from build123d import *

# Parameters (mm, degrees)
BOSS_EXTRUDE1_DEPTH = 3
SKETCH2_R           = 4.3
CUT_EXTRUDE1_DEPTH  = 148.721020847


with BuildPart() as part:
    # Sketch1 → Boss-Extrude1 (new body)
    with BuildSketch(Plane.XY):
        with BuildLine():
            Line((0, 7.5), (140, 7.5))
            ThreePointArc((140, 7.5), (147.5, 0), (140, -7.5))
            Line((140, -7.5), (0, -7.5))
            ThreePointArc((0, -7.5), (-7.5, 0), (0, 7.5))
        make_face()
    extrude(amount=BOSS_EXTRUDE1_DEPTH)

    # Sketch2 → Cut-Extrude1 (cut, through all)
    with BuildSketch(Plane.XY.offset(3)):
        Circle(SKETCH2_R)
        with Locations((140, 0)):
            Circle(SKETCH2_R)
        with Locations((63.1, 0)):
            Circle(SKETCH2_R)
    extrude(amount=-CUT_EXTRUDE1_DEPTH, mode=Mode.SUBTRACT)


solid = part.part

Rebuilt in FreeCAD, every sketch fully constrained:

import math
import FreeCAD as App
import Part
import Sketcher
from FreeCAD import Vector

doc = App.newDocument("Part")
params = doc.addObject("Spreadsheet::Sheet", "Params")
for row, (alias, value) in enumerate([
    ("sketch1_radius", "7.5 mm"),
    ("sketch1_width", "140 mm"),
    ("pad1_length", "3 mm"),
    ("sketch2_diameter", "8.6 mm"),
], start=1):
    params.set(f"A{row}", alias)
    params.set(f"B{row}", "=" + value)
    params.setAlias(f"B{row}", alias)

body = doc.addObject("PartDesign::Body", "Body")

sketch1 = body.newObject("Sketcher::SketchObject", "Sketch")
sketch1.AttachmentSupport = (doc.getObject("XY_Plane"), [""])
sketch1.MapMode = "FlatFace"
sketch1.addGeometry(Part.LineSegment(Vector(140, 8, 0), Vector(0, 8, 0)), False)
sketch1.addGeometry(Part.ArcOfCircle(Part.Circle(Vector(0, 0, 0), Vector(0, 0, 1), 8), math.radians(90), math.radians(270)), False)
sketch1.addGeometry(Part.LineSegment(Vector(0, -8, 0), Vector(140, -8, 0)), False)
sketch1.addGeometry(Part.ArcOfCircle(Part.Circle(Vector(140, 0, 0), Vector(0, 0, 1), 8), math.radians(-90), math.radians(90)), False)
sketch1.addConstraint(Sketcher.Constraint("Tangent", 0, 2, 1, 1))
sketch1.addConstraint(Sketcher.Constraint("Tangent", 1, 2, 2, 1))
sketch1.addConstraint(Sketcher.Constraint("Tangent", 2, 2, 3, 1))
sketch1.addConstraint(Sketcher.Constraint("Tangent", 3, 2, 0, 1))
sketch1.addConstraint(Sketcher.Constraint("Horizontal", 0))
sketch1.addConstraint(Sketcher.Constraint("Horizontal", 2))
sketch1.addConstraint(Sketcher.Constraint("Coincident", 1, 3, -1, 1))
sketch1.addConstraint(Sketcher.Constraint("Radius", 1, 7.5))
sketch1.addConstraint(Sketcher.Constraint("DistanceX", 0, 2, 0, 1, 140.0))
sketch1.setExpression("Constraints[7]", "Params.sketch1_radius")
sketch1.setExpression("Constraints[8]", "Params.sketch1_width")
pad1 = body.newObject("PartDesign::Pad", "Pad")
pad1.Profile = sketch1
pad1.setExpression("Length", "Params.pad1_length")

sketch2 = body.newObject("Sketcher::SketchObject", "Sketch001")
sketch2.AttachmentSupport = (doc.getObject("XY_Plane"), [""])
sketch2.MapMode = "FlatFace"
sketch2.AttachmentOffset = App.Placement(Vector(0, 0, 3), App.Rotation())
sketch2.addGeometry(Part.Circle(Vector(0, 0, 0), Vector(0, 0, 1), 4.3), False)
sketch2.addGeometry(Part.Circle(Vector(140, 0, 0), Vector(0, 0, 1), 4.3), False)
sketch2.addGeometry(Part.Circle(Vector(63.1, 0, 0), Vector(0, 0, 1), 4.3), False)
sketch2.addConstraint(Sketcher.Constraint("Coincident", 0, 3, -1, 1))
sketch2.addConstraint(Sketcher.Constraint("Equal", 0, 1))
sketch2.addConstraint(Sketcher.Constraint("Equal", 1, 2))
sketch2.addConstraint(Sketcher.Constraint("PointOnObject", 1, 3, -1))
sketch2.addConstraint(Sketcher.Constraint("PointOnObject", 2, 3, -1))
sketch2.addConstraint(Sketcher.Constraint("Diameter", 0, 8.6))
sketch2.addConstraint(Sketcher.Constraint("DistanceX", -1, 1, 1, 3, 140.0))
sketch2.addConstraint(Sketcher.Constraint("DistanceX", -1, 1, 2, 3, 63.1))
sketch2.setExpression("Constraints[5]", "Params.sketch2_diameter")
pocket1 = body.newObject("PartDesign::Pocket", "Pocket")
pocket1.Profile = sketch2
pocket1.Type = "ThroughAll"

doc.recompute()
